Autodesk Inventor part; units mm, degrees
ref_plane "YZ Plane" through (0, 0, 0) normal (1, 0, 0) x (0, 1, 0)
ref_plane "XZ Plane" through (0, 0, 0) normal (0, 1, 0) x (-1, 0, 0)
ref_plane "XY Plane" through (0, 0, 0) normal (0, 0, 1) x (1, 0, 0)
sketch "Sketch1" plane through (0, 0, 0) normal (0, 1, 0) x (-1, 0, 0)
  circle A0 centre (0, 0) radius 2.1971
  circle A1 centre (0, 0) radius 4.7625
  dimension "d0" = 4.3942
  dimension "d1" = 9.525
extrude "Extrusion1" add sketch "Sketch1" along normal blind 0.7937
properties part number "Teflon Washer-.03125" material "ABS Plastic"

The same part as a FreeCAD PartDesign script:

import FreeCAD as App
import Part
import Sketcher

V = App.Vector
Q = App.Units.Quantity

doc = App.newDocument("Part")
body = doc.addObject("PartDesign::Body", "Body")

sketch1 = doc.addObject("Sketcher::SketchObject", "Sketch")
body.addObject(sketch1)
sketch1.AttachmentSupport = (doc.XZ_Plane, [""])
sketch1.MapMode = "FlatFace"
sketch1.addGeometry(Part.Circle(V(0, 0, 0), V(0, 0, 1), 4.7625), False)
sketch1.addGeometry(Part.Circle(V(0, 0, 0), V(0, 0, 1), 2.1971), False)
sketch1.addConstraint(Sketcher.Constraint("Coincident", 0, 3, -1, 1))
sketch1.addConstraint(Sketcher.Constraint("Coincident", 1, 3, -1, 1))
sketch1.addConstraint(Sketcher.Constraint("Diameter", 0, Q("0.375 in")))
sketch1.addConstraint(Sketcher.Constraint("Diameter", 1, Q("0.173 in")))
pad1 = doc.addObject("PartDesign::Pad", "Pad")
body.addObject(pad1)
pad1.Profile = sketch1
pad1.Length = Q("0.031248 in")
pad1.Reversed = True

doc.recompute()
